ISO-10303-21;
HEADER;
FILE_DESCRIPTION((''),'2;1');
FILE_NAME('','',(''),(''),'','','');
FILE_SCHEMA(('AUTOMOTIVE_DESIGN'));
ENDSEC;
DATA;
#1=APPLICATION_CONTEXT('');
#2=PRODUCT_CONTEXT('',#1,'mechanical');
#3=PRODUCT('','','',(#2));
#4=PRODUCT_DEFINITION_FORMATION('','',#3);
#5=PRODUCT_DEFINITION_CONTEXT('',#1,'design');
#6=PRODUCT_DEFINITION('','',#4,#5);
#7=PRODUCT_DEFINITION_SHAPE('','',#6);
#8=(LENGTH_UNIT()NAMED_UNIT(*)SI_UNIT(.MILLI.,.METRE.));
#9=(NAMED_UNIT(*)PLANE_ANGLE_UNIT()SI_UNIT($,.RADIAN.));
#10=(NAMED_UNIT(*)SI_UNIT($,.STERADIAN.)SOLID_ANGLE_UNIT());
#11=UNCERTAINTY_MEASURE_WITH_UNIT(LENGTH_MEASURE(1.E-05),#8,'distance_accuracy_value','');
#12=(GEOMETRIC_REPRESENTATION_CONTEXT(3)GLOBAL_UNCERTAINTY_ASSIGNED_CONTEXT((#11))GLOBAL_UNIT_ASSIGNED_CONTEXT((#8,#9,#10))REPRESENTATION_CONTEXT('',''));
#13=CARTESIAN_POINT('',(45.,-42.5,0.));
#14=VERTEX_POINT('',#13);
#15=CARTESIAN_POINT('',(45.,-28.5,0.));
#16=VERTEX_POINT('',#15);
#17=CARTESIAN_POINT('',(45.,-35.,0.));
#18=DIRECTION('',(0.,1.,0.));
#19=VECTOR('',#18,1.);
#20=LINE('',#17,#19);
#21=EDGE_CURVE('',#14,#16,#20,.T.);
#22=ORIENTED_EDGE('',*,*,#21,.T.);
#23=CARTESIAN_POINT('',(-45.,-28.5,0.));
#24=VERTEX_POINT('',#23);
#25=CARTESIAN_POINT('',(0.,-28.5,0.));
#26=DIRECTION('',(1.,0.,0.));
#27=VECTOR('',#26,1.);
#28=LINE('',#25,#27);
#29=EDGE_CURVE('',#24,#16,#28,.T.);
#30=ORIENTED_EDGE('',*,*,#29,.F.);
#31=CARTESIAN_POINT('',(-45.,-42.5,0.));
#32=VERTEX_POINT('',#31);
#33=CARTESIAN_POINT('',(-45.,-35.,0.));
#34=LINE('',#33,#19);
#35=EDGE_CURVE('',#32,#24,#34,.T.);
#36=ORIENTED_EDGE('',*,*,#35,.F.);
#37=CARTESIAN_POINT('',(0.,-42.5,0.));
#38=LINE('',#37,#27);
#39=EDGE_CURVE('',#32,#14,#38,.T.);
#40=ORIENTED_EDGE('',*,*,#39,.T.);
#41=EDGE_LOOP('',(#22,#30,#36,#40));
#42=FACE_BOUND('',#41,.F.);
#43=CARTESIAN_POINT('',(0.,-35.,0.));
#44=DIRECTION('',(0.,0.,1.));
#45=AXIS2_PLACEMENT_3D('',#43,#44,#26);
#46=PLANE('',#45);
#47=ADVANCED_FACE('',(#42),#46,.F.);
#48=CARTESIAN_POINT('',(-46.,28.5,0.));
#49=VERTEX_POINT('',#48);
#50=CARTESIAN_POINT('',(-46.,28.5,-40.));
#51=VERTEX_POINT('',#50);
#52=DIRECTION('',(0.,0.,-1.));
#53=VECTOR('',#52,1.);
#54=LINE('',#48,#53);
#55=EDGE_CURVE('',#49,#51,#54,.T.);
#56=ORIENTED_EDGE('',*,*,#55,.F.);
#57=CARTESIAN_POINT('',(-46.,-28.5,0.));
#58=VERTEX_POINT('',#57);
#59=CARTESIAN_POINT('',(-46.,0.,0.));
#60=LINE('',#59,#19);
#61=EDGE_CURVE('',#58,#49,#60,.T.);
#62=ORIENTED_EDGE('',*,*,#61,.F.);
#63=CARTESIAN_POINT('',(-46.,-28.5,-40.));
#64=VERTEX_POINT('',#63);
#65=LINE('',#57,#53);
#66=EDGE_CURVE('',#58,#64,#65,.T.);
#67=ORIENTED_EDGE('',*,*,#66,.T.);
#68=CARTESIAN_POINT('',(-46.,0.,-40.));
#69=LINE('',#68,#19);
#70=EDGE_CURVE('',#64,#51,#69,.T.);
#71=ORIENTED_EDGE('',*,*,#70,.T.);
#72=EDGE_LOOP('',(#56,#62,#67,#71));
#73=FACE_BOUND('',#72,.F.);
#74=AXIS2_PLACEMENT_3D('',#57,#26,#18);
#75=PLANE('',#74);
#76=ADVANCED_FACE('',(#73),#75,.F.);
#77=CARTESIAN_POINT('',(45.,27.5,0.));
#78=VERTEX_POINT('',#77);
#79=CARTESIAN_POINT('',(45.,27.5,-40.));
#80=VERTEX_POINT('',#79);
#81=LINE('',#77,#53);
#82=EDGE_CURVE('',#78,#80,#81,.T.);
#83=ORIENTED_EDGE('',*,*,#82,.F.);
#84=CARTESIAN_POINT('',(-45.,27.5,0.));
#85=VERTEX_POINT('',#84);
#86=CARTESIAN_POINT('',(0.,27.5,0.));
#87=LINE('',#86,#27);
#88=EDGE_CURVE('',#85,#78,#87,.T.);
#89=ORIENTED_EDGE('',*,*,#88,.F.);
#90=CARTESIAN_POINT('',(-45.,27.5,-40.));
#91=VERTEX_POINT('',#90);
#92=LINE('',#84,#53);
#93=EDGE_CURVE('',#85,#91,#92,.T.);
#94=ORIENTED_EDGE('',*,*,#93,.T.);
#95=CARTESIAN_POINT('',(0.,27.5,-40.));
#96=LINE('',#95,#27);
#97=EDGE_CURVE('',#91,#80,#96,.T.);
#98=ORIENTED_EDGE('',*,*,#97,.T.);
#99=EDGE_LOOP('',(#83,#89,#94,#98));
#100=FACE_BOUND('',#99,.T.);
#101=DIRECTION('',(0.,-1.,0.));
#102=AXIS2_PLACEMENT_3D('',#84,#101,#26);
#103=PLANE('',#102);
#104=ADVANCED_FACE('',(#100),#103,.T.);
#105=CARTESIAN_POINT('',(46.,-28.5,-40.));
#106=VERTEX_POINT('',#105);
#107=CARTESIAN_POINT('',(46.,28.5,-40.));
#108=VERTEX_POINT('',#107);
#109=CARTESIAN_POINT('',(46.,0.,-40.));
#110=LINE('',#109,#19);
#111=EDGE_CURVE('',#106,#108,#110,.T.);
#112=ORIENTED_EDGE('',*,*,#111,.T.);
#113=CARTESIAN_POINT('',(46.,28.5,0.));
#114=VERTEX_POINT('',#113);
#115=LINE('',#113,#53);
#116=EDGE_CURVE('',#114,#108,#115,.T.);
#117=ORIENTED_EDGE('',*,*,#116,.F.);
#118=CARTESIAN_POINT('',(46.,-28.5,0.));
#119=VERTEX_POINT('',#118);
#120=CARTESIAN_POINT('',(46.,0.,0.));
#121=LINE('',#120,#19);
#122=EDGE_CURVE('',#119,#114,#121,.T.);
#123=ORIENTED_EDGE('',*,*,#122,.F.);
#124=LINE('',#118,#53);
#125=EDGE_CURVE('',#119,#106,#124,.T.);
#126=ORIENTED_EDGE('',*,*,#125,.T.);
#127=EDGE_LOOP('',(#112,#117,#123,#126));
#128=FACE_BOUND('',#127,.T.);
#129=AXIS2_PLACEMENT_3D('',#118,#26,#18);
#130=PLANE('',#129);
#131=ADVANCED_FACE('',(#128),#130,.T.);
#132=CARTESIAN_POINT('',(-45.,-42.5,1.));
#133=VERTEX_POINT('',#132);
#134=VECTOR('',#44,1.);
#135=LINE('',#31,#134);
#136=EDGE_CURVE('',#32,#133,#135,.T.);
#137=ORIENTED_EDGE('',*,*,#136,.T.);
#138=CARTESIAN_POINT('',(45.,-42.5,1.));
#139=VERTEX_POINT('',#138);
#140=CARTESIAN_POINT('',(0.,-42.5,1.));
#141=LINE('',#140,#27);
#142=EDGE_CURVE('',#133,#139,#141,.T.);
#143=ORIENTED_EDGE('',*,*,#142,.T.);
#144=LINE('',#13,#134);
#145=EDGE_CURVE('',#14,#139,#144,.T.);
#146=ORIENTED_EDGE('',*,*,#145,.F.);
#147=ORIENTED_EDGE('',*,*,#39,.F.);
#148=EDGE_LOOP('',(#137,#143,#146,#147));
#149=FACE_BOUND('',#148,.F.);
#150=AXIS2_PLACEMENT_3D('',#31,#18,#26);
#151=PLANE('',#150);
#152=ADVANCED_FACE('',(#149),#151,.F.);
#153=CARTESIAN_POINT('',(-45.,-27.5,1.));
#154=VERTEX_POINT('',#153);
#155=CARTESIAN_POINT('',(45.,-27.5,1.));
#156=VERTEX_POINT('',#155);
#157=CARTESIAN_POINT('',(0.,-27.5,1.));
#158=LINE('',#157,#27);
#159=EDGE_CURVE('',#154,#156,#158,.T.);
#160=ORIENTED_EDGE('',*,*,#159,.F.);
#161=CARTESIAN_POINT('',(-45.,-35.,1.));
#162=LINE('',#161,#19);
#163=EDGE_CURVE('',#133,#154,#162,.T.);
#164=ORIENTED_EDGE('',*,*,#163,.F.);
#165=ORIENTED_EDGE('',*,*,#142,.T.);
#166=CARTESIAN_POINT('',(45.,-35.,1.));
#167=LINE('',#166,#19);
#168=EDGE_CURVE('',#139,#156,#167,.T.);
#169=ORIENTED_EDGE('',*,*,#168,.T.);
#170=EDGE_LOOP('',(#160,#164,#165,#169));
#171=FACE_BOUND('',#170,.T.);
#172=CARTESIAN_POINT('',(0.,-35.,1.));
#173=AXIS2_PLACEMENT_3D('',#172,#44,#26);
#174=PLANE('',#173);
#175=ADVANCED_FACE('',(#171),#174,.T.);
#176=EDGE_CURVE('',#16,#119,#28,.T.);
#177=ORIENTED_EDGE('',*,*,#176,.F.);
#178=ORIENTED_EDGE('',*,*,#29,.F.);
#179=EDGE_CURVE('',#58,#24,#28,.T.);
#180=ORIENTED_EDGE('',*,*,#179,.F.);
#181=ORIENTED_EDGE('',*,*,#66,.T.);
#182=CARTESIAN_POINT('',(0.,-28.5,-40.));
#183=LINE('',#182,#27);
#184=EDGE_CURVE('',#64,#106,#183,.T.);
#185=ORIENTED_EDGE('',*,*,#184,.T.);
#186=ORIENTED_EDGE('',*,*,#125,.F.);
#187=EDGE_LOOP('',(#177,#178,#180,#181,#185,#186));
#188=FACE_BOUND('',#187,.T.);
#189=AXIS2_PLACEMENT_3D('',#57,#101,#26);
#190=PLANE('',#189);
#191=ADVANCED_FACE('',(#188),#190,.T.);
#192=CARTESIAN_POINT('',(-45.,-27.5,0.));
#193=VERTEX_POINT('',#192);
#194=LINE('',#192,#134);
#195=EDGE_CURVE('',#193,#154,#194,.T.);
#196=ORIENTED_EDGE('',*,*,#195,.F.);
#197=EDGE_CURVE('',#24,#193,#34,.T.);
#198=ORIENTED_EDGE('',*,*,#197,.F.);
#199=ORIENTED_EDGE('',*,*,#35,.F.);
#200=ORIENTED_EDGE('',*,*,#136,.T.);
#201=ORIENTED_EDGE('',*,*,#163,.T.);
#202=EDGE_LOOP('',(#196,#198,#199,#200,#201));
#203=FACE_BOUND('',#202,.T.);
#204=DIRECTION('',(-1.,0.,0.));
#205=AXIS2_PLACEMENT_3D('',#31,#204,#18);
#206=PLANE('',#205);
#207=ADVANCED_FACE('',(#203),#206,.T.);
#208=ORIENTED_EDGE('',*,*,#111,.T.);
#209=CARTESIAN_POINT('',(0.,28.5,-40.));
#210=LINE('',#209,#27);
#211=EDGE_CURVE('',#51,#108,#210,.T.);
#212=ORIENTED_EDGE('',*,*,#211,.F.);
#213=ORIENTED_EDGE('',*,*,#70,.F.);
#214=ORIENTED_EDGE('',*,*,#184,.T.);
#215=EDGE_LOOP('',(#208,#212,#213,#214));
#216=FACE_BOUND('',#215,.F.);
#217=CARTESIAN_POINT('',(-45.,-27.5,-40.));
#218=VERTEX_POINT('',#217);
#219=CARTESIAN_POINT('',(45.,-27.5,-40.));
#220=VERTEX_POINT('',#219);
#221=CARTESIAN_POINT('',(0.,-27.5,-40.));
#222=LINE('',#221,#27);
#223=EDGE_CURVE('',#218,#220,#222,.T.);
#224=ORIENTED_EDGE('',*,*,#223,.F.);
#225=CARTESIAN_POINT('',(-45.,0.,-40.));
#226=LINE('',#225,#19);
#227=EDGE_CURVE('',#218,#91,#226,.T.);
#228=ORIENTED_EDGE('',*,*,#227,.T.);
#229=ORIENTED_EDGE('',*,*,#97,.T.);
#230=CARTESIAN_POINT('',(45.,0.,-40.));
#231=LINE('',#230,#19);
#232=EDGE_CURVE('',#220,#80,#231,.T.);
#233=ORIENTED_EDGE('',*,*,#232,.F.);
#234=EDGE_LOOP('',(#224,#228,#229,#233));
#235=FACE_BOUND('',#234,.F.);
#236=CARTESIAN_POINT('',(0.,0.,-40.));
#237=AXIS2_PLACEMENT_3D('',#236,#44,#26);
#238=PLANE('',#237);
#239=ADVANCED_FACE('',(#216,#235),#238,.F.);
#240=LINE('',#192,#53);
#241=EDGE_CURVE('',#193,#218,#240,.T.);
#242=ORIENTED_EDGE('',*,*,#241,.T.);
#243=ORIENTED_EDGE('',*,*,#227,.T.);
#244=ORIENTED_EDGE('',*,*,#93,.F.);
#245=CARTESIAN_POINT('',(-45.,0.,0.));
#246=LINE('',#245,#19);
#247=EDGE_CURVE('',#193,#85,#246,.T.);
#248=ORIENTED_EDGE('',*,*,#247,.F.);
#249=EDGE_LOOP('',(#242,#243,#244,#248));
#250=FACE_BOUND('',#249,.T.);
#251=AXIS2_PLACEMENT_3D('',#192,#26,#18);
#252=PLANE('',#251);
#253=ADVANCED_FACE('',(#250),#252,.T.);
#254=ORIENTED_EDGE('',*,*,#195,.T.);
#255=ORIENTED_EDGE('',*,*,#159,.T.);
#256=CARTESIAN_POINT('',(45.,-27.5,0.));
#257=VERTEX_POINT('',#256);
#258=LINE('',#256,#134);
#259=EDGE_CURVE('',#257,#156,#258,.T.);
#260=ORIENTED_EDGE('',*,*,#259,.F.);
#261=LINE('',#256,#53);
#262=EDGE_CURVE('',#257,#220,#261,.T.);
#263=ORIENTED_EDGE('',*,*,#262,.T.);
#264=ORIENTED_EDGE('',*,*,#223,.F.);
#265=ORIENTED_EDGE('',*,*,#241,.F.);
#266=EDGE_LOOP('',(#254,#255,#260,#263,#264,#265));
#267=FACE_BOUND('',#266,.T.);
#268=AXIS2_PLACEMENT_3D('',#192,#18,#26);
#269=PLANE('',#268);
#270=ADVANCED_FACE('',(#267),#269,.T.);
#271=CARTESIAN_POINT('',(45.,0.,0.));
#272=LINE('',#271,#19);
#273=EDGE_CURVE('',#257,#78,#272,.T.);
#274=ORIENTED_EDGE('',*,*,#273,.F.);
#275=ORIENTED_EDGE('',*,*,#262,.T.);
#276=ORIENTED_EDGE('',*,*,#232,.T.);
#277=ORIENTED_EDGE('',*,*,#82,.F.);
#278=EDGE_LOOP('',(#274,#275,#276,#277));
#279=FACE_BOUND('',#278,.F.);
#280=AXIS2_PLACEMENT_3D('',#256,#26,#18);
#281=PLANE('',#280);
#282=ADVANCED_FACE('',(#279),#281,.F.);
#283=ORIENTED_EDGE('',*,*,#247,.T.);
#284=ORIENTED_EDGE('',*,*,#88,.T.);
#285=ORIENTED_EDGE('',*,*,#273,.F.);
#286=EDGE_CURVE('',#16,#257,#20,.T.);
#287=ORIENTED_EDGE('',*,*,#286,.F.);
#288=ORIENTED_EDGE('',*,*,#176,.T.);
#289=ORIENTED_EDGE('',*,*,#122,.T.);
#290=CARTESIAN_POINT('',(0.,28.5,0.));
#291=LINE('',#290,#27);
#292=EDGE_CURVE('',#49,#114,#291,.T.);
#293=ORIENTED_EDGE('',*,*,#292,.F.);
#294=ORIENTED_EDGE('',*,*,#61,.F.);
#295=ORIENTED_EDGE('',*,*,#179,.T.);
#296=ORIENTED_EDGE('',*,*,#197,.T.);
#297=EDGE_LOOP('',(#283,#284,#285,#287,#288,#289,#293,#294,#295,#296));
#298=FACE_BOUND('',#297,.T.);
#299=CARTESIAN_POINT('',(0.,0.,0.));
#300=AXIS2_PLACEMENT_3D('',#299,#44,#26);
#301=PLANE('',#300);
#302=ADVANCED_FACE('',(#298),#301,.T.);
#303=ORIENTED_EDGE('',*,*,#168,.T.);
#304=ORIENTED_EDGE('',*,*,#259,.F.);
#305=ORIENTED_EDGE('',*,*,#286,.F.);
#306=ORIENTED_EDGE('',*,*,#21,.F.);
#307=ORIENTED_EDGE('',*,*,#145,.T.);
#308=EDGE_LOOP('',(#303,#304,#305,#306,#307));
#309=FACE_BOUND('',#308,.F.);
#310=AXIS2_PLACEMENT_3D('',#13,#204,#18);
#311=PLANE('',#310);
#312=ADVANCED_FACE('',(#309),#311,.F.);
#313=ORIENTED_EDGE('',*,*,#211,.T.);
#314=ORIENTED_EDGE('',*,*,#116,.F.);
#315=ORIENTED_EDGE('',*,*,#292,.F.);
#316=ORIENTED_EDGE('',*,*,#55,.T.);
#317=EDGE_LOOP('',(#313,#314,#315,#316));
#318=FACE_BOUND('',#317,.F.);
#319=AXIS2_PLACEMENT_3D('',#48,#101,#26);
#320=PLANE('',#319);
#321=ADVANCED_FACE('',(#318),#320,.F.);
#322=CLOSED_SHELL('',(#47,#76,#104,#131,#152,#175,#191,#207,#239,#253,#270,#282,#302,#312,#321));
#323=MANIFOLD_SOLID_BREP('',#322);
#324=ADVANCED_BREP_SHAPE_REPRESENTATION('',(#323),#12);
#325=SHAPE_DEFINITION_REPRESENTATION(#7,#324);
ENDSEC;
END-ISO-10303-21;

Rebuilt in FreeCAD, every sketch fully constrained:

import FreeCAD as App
import Part
import Sketcher


def add_polygon(sketch, points):
    """Adds a closed chain of lines whose ends are joined by coincident constraints."""
    first, n = sketch.GeometryCount, len(points)
    for a, b in zip(points, points[1:] + points[:1]):
        sketch.addGeometry(Part.LineSegment(App.Vector(*a, 0), App.Vector(*b, 0)), False)
    for i in range(n):
        sketch.addConstraint(Sketcher.Constraint("Coincident", first + i, 2, first + (i + 1) % n, 1))

doc = App.newDocument("Part")
body = doc.addObject("PartDesign::Body", "Body")

sketch1 = body.newObject("Sketcher::SketchObject", "Sketch")
sketch1.AttachmentSupport = (doc.getObject("XY_Plane"), [""])
sketch1.MapMode = "FlatFace"
add_polygon(sketch1, [(-46, 28.5), (-46, -28.5), (46, -28.5), (46, 28.5)])
add_polygon(sketch1, [(45, -27.5), (-45, -27.5), (-45, 27.5), (45, 27.5)])
sketch1.addConstraint([
    Sketcher.Constraint("Vertical", 0),
    Sketcher.Constraint("Horizontal", 1),
    Sketcher.Constraint("Vertical", 2),
    Sketcher.Constraint("Horizontal", 3),
    Sketcher.Constraint("Horizontal", 4),
    Sketcher.Constraint("Vertical", 5),
    Sketcher.Constraint("Horizontal", 6),
    Sketcher.Constraint("Vertical", 7),
    Sketcher.Constraint("Symmetric", 0, 2, 2, 2, -1, 1),
    Sketcher.Constraint("Symmetric", 4, 2, 6, 2, -1, 1),
    Sketcher.Constraint("DistanceX", 1, 1, 1, 2, 92.0),
    Sketcher.Constraint("DistanceX", 4, 2, 4, 1, 90.0),
    Sketcher.Constraint("DistanceY", 0, 2, 0, 1, 57.0),
    Sketcher.Constraint("DistanceY", 5, 1, 5, 2, 55.0),
])
pad1 = body.newObject("PartDesign::Pad", "Pad")
pad1.Profile = sketch1
pad1.Length = 40
pad1.Reversed = True

sketch2 = body.newObject("Sketcher::SketchObject", "Sketch001")
sketch2.AttachmentSupport = (doc.getObject("XY_Plane"), [""])
sketch2.MapMode = "FlatFace"
add_polygon(sketch2, [(-45, -27.5), (-45, -42.5), (45, -42.5), (45, -27.5)])
sketch2.addConstraint([
    Sketcher.Constraint("Vertical", 0),
    Sketcher.Constraint("Horizontal", 1),
    Sketcher.Constraint("Vertical", 2),
    Sketcher.Constraint("Horizontal", 3),
    Sketcher.Constraint("DistanceX", 1, 1, 1, 2, 90.0),
    Sketcher.Constraint("DistanceY", 0, 2, 0, 1, 15.0),
    Sketcher.Constraint("DistanceX", 0, 2, -1, 1, 45.0),
    Sketcher.Constraint("DistanceY", 0, 2, -1, 1, 42.5),
])
pad2 = body.newObject("PartDesign::Pad", "Pad001")
pad2.Profile = sketch2
pad2.Length = 1

doc.recompute()
